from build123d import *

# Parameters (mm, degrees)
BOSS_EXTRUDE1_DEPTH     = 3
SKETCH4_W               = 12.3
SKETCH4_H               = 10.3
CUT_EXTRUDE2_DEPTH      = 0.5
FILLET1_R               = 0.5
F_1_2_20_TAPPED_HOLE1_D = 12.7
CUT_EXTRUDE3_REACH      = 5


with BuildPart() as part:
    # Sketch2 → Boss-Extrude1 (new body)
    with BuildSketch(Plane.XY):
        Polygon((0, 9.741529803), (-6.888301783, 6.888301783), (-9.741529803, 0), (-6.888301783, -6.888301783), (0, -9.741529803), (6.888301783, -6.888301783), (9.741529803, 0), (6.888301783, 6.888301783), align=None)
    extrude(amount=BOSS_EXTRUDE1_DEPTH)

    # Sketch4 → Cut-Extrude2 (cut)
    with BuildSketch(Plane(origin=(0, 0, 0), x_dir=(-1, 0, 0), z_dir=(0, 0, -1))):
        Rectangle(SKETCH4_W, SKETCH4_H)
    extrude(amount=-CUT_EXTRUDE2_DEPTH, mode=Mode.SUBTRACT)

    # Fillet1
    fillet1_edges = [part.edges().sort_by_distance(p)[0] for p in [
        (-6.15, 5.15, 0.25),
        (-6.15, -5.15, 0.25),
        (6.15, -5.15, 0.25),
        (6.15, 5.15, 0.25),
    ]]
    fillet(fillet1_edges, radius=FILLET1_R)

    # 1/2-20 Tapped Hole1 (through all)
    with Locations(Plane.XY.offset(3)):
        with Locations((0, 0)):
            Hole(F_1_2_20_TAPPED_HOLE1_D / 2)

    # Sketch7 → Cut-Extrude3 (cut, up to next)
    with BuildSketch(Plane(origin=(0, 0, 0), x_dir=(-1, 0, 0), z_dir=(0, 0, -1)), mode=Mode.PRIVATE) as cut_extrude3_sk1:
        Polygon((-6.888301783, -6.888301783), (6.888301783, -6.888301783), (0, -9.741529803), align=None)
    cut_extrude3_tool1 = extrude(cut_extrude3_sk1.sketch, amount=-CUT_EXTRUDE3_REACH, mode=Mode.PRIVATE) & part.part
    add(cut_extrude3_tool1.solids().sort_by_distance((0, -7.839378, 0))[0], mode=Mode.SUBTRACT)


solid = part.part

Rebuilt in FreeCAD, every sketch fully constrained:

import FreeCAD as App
import Part
import Sketcher
from FreeCAD import Vector
Q = App.Units.Quantity


def edges_at(feature, points):
    """Names of the edges that pass closest to the given points."""
    edges = feature.Shape.Edges
    near = lambda p: min(range(len(edges)), key=lambda i: edges[i].distToShape(Part.Vertex(*p))[0])
    return sorted({f"Edge{near(p) + 1}" for p in points})

doc = App.newDocument("Part")
body = doc.addObject("PartDesign::Body", "Body")

# Sketch on XY plane
sketch1 = body.newObject("Sketcher::SketchObject", "Sketch")
sketch1.AttachmentSupport = (doc.getObject("XY_Plane"), [""])
sketch1.MapMode = "FlatFace"
sketch1.addGeometry([
    Part.LineSegment(Vector(0, 10, 0), Vector(-7, 7, 0)),  # 0
    Part.LineSegment(Vector(-7, 7, 0), Vector(-10, 0, 0)),  # 1
    Part.LineSegment(Vector(-10, 0, 0), Vector(-7, -7, 0)),  # 2
    Part.LineSegment(Vector(-7, -7, 0), Vector(0, -10, 0)),  # 3
    Part.LineSegment(Vector(0, -10, 0), Vector(7, -7, 0)),  # 4
    Part.LineSegment(Vector(7, -7, 0), Vector(10, 0, 0)),  # 5
    Part.LineSegment(Vector(10, 0, 0), Vector(7, 7, 0)),  # 6
    Part.LineSegment(Vector(7, 7, 0), Vector(0, 10, 0)),  # 7
], False)
sketch1.addConstraint([
    Sketcher.Constraint("Coincident", 0, 2, 1, 1),
    Sketcher.Constraint("Coincident", 1, 2, 2, 1),
    Sketcher.Constraint("Coincident", 2, 2, 3, 1),
    Sketcher.Constraint("Coincident", 3, 2, 4, 1),
    Sketcher.Constraint("Coincident", 4, 2, 5, 1),
    Sketcher.Constraint("Coincident", 5, 2, 6, 1),
    Sketcher.Constraint("Coincident", 6, 2, 7, 1),
    Sketcher.Constraint("Coincident", 7, 2, 0, 1),
    Sketcher.Constraint("Symmetric", 0, 2, 4, 2, -1, 1),
    Sketcher.Constraint("Symmetric", 1, 2, 5, 2, -1, 1),
    Sketcher.Constraint("Symmetric", 2, 2, 6, 2, -1, 1),
    Sketcher.Constraint("Symmetric", 3, 2, 7, 2, -1, 1),
    Sketcher.Constraint("Symmetric", 2, 2, 4, 2, -2),
    Sketcher.Constraint("PointOnObject", 1, 2, -1),
    Sketcher.Constraint("PointOnObject", 3, 2, -2),
    Sketcher.Constraint("Perpendicular", 0, 2),
    Sketcher.Constraint("Equal", 0, 1),
    Sketcher.Constraint("Angle", 0, Q("-157.5 deg")),
    Sketcher.Constraint("DistanceX", 0, 2, -1, 1, 6.888302),
])
pad1 = body.newObject("PartDesign::Pad", "Pad")
pad1.Profile = sketch1
pad1.Length = 3

# Sketch on XY plane
sketch2 = body.newObject("Sketcher::SketchObject", "Sketch001")
sketch2.AttachmentSupport = (doc.getObject("XY_Plane"), [""])
sketch2.MapMode = "FlatFace"
sketch2.addGeometry([
    Part.LineSegment(Vector(6, 5, 0), Vector(6, -5, 0)),
    Part.LineSegment(Vector(6, -5, 0), Vector(-6, -5, 0)),
    Part.LineSegment(Vector(-6, -5, 0), Vector(-6, 5, 0)),
    Part.LineSegment(Vector(-6, 5, 0), Vector(6, 5, 0)),
], False)
sketch2.addConstraint([
    Sketcher.Constraint("Coincident", 0, 2, 1, 1),
    Sketcher.Constraint("Coincident", 1, 2, 2, 1),
    Sketcher.Constraint("Coincident", 2, 2, 3, 1),
    Sketcher.Constraint("Coincident", 3, 2, 0, 1),
    Sketcher.Constraint("Vertical", 0),
    Sketcher.Constraint("Horizontal", 1),
    Sketcher.Constraint("Vertical", 2),
    Sketcher.Constraint("Horizontal", 3),
    Sketcher.Constraint("Symmetric", 0, 2, 2, 2, -1, 1),
    Sketcher.Constraint("DistanceX", 1, 2, 1, 1, 12.3),
    Sketcher.Constraint("DistanceY", 0, 2, 0, 1, 10.3),
])
pocket1 = body.newObject("PartDesign::Pocket", "Pocket")
pocket1.Profile = sketch2
pocket1.Length = 0.5
pocket1.Reversed = True
doc.recompute()

fillet = body.newObject("PartDesign::Fillet", "Fillet")
fillet.Base = (pocket1, edges_at(pocket1, [
    (-6.15, 5.15, 0.25),
    (-6.15, -5.15, 0.25),
    (6.15, -5.15, 0.25),
    (6.15, 5.15, 0.25),
]))
fillet.Radius = 0.5

# Sketch on XY plane
sketch3 = body.newObject("Sketcher::SketchObject", "Sketch002")
sketch3.AttachmentSupport = (doc.getObject("XY_Plane"), [""])
sketch3.MapMode = "FlatFace"
sketch3.AttachmentOffset = App.Placement(Vector(0, 0, 3), App.Rotation())
sketch3.addGeometry(Part.Circle(Vector(0, 0, 0), Vector(0, 0, 1), 6), False)
sketch3.addConstraint([
    Sketcher.Constraint("Coincident", 0, 3, -1, 1),
    Sketcher.Constraint("Diameter", 0, 12.7),
])
doc.recompute()
hole = body.newObject("PartDesign::Hole", "Hole")
hole.Profile = sketch3
hole.ThreadType = "None"
hole.Diameter = 12.7
hole.DepthType = "ThroughAll"

# Sketch on XY plane
sketch4 = body.newObject("Sketcher::SketchObject", "Sketch003")
sketch4.AttachmentSupport = (doc.getObject("XY_Plane"), [""])
sketch4.MapMode = "FlatFace"
sketch4.addGeometry([
    Part.LineSegment(Vector(-7, -7, 0), Vector(7, -7, 0)),
    Part.LineSegment(Vector(7, -7, 0), Vector(0, -10, 0)),
    Part.LineSegment(Vector(0, -10, 0), Vector(-7, -7, 0)),
], False)
sketch4.addConstraint([
    Sketcher.Constraint("Coincident", 0, 2, 1, 1),
    Sketcher.Constraint("Coincident", 1, 2, 2, 1),
    Sketcher.Constraint("Coincident", 2, 2, 0, 1),
    Sketcher.Constraint("Horizontal", 0),
    Sketcher.Constraint("PointOnObject", 1, 2, -2),
    Sketcher.Constraint("Equal", 1, 2),
    Sketcher.Constraint("Angle", 1, Q("-157.5 deg")),
    Sketcher.Constraint("DistanceX", -1, 1, 0, 2, 6.888302),
    Sketcher.Constraint("DistanceY", 0, 2, -1, 1, 6.888302),
])
pocket2 = body.newObject("PartDesign::Pocket", "Pocket001")
pocket2.Profile = sketch4
pocket2.Type = "UpToFirst"
pocket2.Reversed = True

doc.recompute()
